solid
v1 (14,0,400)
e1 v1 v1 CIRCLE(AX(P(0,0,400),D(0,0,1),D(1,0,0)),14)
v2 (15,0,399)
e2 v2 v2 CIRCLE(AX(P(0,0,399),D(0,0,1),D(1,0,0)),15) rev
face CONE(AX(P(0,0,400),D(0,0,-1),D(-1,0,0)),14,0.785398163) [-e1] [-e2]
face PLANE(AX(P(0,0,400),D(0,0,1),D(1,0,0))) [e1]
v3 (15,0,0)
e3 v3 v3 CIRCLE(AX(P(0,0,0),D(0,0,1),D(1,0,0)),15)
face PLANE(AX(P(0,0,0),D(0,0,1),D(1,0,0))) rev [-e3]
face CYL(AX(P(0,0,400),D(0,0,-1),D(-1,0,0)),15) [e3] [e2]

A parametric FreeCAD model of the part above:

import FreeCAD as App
import Part
import Sketcher

V = App.Vector
Q = App.Units.Quantity


def edges_at(feature, points):
    """Names of the edges that pass closest to the given points."""
    edges = feature.Shape.Edges
    near = lambda p: min(range(len(edges)), key=lambda i: edges[i].distToShape(Part.Vertex(*p))[0])
    return sorted({f"Edge{near(p) + 1}" for p in points})

doc = App.newDocument("Part")
body = doc.addObject("PartDesign::Body", "Body")

sketch1 = body.newObject("Sketcher::SketchObject", "Sketch")
sketch1.AttachmentSupport = (doc.getObject("XY_Plane"), [""])
sketch1.MapMode = "FlatFace"
sketch1.addGeometry(Part.Circle(V(0, 0, 0), V(0, 0, 1), 15), False)
sketch1.addConstraint(Sketcher.Constraint("Coincident", 0, 3, -1, 1))
sketch1.addConstraint(Sketcher.Constraint("Diameter", 0, Q("30 mm")))
pad1 = body.newObject("PartDesign::Pad", "Pad")
pad1.Profile = sketch1
pad1.Length = 400
doc.recompute()

chamfer = body.newObject("PartDesign::Chamfer", "Chamfer")
chamfer.Base = (pad1, edges_at(pad1, [(-15, 0, 400)]))
chamfer.Size = 1

doc.recompute()
